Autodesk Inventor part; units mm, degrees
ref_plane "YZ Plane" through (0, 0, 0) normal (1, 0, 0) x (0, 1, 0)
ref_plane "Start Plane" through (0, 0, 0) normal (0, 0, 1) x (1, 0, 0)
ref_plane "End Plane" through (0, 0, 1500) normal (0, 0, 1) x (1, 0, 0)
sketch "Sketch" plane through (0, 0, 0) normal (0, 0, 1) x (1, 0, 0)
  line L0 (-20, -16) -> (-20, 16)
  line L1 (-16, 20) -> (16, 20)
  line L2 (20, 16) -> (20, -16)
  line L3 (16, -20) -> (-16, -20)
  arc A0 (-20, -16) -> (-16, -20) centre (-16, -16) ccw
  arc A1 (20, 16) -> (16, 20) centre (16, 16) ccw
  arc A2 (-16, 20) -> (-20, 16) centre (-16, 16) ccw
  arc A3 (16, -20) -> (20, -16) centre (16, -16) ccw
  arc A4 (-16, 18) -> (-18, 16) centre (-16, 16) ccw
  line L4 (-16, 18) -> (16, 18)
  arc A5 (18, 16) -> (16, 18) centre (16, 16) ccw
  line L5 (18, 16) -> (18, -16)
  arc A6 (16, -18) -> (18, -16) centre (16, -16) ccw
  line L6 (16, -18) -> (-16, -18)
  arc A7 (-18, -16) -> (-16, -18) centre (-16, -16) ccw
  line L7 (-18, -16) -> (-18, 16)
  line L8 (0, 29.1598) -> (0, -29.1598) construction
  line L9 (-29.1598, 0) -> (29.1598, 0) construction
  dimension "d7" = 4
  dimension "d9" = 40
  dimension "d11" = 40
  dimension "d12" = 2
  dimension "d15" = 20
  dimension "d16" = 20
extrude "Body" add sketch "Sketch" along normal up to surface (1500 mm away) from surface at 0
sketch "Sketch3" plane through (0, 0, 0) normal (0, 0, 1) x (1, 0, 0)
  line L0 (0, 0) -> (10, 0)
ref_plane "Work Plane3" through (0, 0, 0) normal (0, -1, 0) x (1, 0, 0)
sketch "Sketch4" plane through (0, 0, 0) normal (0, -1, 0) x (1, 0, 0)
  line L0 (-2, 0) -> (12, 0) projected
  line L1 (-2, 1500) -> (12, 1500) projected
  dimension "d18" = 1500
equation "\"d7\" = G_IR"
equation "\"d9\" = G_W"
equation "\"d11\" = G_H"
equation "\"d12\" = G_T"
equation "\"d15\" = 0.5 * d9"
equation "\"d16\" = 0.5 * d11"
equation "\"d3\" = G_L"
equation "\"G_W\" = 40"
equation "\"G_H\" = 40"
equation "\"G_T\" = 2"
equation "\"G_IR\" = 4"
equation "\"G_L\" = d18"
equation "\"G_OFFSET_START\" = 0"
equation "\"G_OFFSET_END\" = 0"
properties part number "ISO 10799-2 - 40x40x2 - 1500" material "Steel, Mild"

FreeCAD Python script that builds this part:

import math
import FreeCAD as App
import Part
import Sketcher

doc = App.newDocument("Part")
body = doc.addObject("PartDesign::Body", "Body")

sketch1 = doc.addObject("Sketcher::SketchObject", "Sketch")
body.addObject(sketch1)
sketch1.AttachmentSupport = (doc.XY_Plane, [""])
sketch1.MapMode = "FlatFace"
sketch1.addGeometry([
    Part.LineSegment(App.Vector(-20, 16, 0), App.Vector(-20, -16, 0)),
    Part.ArcOfCircle(Part.Circle(App.Vector(-16, -16, 0), App.Vector(0, 0, 1), 4), math.radians(180), math.radians(270)),
    Part.LineSegment(App.Vector(-16, -20, 0), App.Vector(16, -20, 0)),
    Part.ArcOfCircle(Part.Circle(App.Vector(16, -16, 0), App.Vector(0, 0, 1), 4), math.radians(-90), math.radians(0)),
    Part.LineSegment(App.Vector(20, -16, 0), App.Vector(20, 16, 0)),
    Part.ArcOfCircle(Part.Circle(App.Vector(16, 16, 0), App.Vector(0, 0, 1), 4), math.radians(0), math.radians(90)),
    Part.LineSegment(App.Vector(16, 20, 0), App.Vector(-16, 20, 0)),
    Part.ArcOfCircle(Part.Circle(App.Vector(-16, 16, 0), App.Vector(0, 0, 1), 4), math.radians(90), math.radians(180)),
    Part.ArcOfCircle(Part.Circle(App.Vector(-16, 16, 0), App.Vector(0, 0, 1), 2), math.radians(90), math.radians(180)),
    Part.LineSegment(App.Vector(-16, 18, 0), App.Vector(16, 18, 0)),
    Part.ArcOfCircle(Part.Circle(App.Vector(16, 16, 0), App.Vector(0, 0, 1), 2), math.radians(0), math.radians(90)),
    Part.LineSegment(App.Vector(18, 16, 0), App.Vector(18, -16, 0)),
    Part.ArcOfCircle(Part.Circle(App.Vector(16, -16, 0), App.Vector(0, 0, 1), 2), math.radians(-90), math.radians(0)),
    Part.LineSegment(App.Vector(16, -18, 0), App.Vector(-16, -18, 0)),
    Part.ArcOfCircle(Part.Circle(App.Vector(-16, -16, 0), App.Vector(0, 0, 1), 2), math.radians(180), math.radians(270)),
    Part.LineSegment(App.Vector(-18, -16, 0), App.Vector(-18, 16, 0)),
], False)
sketch1.addConstraint([
    Sketcher.Constraint("Tangent", 0, 2, 1, 1),
    Sketcher.Constraint("Tangent", 1, 2, 2, 1),
    Sketcher.Constraint("Tangent", 2, 2, 3, 1),
    Sketcher.Constraint("Tangent", 3, 2, 4, 1),
    Sketcher.Constraint("Tangent", 4, 2, 5, 1),
    Sketcher.Constraint("Tangent", 5, 2, 6, 1),
    Sketcher.Constraint("Tangent", 6, 2, 7, 1),
    Sketcher.Constraint("Tangent", 7, 2, 0, 1),
    Sketcher.Constraint("Tangent", 8, 1, 9, 1),
    Sketcher.Constraint("Tangent", 9, 2, 10, 2),
    Sketcher.Constraint("Tangent", 10, 1, 11, 1),
    Sketcher.Constraint("Tangent", 11, 2, 12, 2),
    Sketcher.Constraint("Tangent", 12, 1, 13, 1),
    Sketcher.Constraint("Tangent", 13, 2, 14, 2),
    Sketcher.Constraint("Tangent", 14, 1, 15, 1),
    Sketcher.Constraint("Tangent", 15, 2, 8, 2),
    Sketcher.Constraint("Vertical", 0),
    Sketcher.Constraint("Horizontal", 2),
    Sketcher.Constraint("Vertical", 4),
    Sketcher.Constraint("Horizontal", 6),
    Sketcher.Constraint("Horizontal", 9),
    Sketcher.Constraint("Vertical", 11),
    Sketcher.Constraint("Horizontal", 13),
    Sketcher.Constraint("Vertical", 15),
    Sketcher.Constraint("Coincident", 8, 3, 7, 3),
    Sketcher.Constraint("Coincident", 10, 3, 5, 3),
    Sketcher.Constraint("Coincident", 12, 3, 3, 3),
    Sketcher.Constraint("Equal", 1, 3),
    Sketcher.Constraint("Equal", 3, 5),
    Sketcher.Constraint("Equal", 5, 7),
    Sketcher.Constraint("Equal", 12, 14),
    Sketcher.Constraint("Symmetric", 1, 3, 5, 3, -1, 1),
    Sketcher.Constraint("Equal", 13, 0),
    Sketcher.Constraint("Radius", 1, 4.0),
    Sketcher.Constraint("Radius", 8, 2.0),
    Sketcher.Constraint("DistanceX", 0, 2, -1, 1, 20.0),
])
pad1 = doc.addObject("PartDesign::Pad", "Pad")
body.addObject(pad1)
pad1.Profile = sketch1
pad1.Length = 1500

doc.recompute()
